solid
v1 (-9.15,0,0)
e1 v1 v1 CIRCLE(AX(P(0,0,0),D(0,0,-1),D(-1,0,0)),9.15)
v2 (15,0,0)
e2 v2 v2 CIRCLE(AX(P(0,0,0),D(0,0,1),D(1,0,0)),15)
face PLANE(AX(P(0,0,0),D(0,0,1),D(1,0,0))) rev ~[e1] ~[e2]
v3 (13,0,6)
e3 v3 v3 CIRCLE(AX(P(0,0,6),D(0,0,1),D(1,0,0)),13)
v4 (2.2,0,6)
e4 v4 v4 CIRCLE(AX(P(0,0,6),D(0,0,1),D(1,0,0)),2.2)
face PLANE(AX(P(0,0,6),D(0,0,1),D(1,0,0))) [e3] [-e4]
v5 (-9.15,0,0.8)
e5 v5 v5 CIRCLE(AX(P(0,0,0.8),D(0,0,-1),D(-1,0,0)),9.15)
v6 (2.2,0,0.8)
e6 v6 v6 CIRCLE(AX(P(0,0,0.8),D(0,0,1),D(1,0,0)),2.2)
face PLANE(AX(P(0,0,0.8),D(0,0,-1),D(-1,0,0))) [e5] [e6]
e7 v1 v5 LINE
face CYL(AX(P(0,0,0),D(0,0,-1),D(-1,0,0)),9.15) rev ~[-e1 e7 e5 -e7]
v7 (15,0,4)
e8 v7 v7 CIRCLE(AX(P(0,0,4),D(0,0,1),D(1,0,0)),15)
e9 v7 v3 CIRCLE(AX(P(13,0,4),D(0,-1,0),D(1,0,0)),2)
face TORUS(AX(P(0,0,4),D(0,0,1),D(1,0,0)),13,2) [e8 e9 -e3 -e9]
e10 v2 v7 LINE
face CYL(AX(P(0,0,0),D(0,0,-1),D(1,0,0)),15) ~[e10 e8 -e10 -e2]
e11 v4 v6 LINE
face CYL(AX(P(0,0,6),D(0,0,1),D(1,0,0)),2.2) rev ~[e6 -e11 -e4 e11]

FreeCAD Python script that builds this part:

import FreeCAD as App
import Part
import Sketcher

V = App.Vector
Q = App.Units.Quantity


def edges_at(feature, points):
    """Names of the edges that pass closest to the given points."""
    edges = feature.Shape.Edges
    near = lambda p: min(range(len(edges)), key=lambda i: edges[i].distToShape(Part.Vertex(*p))[0])
    return sorted({f"Edge{near(p) + 1}" for p in points})

doc = App.newDocument("Part")
params = doc.addObject("Spreadsheet::Sheet", "Params")
for row, (alias, value) in enumerate([
    ("sketch1_diameter", "30 mm"),
    ("pad1_length", "6 mm"),
    ("fillet_radius", "2 mm"),
    ("sketch2_diameter", "4.4 mm"),
    ("pocket1_length", "10 mm"),
    ("sketch3_diameter", "18.3 mm"),
    ("pocket2_length", "0.8 mm"),
], start=1):
    params.set(f"A{row}", alias)
    params.set(f"B{row}", "=" + value)
    params.setAlias(f"B{row}", alias)

body = doc.addObject("PartDesign::Body", "Body")

sketch1 = body.newObject("Sketcher::SketchObject", "Sketch")
sketch1.AttachmentSupport = (doc.getObject("XY_Plane"), [""])
sketch1.MapMode = "FlatFace"
sketch1.addGeometry(Part.Circle(V(0, 0, 0), V(0, 0, 1), 15), False)
sketch1.addConstraint([
    Sketcher.Constraint("Coincident", 0, 3, -1, 1),
    Sketcher.Constraint("Diameter", 0, Q("30 mm")),
])
sketch1.setExpression("Constraints[1]", "Params.sketch1_diameter")
pad1 = body.newObject("PartDesign::Pad", "Pad")
pad1.Profile = sketch1
pad1.setExpression("Length", "Params.pad1_length")
doc.recompute()

fillet = body.newObject("PartDesign::Fillet", "Fillet")
fillet.Base = (pad1, edges_at(pad1, [(-15, 0, 6)]))
fillet.setExpression("Radius", "Params.fillet_radius")

sketch2 = body.newObject("Sketcher::SketchObject", "Sketch001")
sketch2.AttachmentSupport = (doc.getObject("XY_Plane"), [""])
sketch2.MapMode = "FlatFace"
sketch2.AttachmentOffset = App.Placement(V(0, 0, 6), App.Rotation())
sketch2.addGeometry(Part.Circle(V(0, 0, 0), V(0, 0, 1), 2.2), False)
sketch2.addConstraint([
    Sketcher.Constraint("Coincident", 0, 3, -1, 1),
    Sketcher.Constraint("Diameter", 0, Q("4.4 mm")),
])
sketch2.setExpression("Constraints[1]", "Params.sketch2_diameter")
pocket1 = body.newObject("PartDesign::Pocket", "Pocket")
pocket1.Profile = sketch2
pocket1.setExpression("Length", "Params.pocket1_length")

sketch3 = body.newObject("Sketcher::SketchObject", "Sketch002")
sketch3.AttachmentSupport = (doc.getObject("XY_Plane"), [""])
sketch3.MapMode = "FlatFace"
sketch3.addGeometry(Part.Circle(V(0, 0, 0), V(0, 0, 1), 9.15), False)
sketch3.addConstraint([
    Sketcher.Constraint("Coincident", 0, 3, -1, 1),
    Sketcher.Constraint("Diameter", 0, Q("18.3 mm")),
])
sketch3.setExpression("Constraints[1]", "Params.sketch3_diameter")
pocket2 = body.newObject("PartDesign::Pocket", "Pocket001")
pocket2.Profile = sketch3
pocket2.setExpression("Length", "Params.pocket2_length")
pocket2.Reversed = True

doc.recompute()
